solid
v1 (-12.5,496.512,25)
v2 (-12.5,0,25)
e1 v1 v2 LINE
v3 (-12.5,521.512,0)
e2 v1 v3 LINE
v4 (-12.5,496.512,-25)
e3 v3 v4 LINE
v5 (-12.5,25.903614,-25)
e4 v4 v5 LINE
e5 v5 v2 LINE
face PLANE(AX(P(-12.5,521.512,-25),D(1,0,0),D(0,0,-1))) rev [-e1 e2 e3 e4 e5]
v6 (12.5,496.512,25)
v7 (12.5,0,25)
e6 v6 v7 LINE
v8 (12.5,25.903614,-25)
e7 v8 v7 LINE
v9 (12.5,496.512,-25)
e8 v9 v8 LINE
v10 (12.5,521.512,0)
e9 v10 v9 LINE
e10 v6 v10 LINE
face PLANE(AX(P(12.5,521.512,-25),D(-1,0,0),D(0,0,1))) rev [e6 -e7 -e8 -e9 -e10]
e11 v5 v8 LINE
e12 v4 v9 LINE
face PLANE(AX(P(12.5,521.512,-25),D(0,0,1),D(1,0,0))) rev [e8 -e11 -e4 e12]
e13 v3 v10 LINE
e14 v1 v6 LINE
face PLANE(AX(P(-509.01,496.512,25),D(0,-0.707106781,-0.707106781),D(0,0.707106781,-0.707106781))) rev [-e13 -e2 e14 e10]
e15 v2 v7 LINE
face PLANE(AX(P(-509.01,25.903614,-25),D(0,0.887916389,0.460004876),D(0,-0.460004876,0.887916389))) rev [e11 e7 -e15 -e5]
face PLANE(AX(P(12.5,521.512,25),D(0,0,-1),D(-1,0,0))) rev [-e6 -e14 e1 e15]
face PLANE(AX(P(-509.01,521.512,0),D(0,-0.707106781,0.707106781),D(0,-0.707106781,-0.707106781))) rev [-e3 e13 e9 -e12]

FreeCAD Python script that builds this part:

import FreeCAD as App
import Part
import Sketcher
from FreeCAD import Vector
Q = App.Units.Quantity


def add_polygon(sketch, points):
    """Adds a closed chain of lines whose ends are joined by coincident constraints."""
    first, n = sketch.GeometryCount, len(points)
    for a, b in zip(points, points[1:] + points[:1]):
        sketch.addGeometry(Part.LineSegment(App.Vector(*a, 0), App.Vector(*b, 0)), False)
    for i in range(n):
        sketch.addConstraint(Sketcher.Constraint("Coincident", first + i, 2, first + (i + 1) % n, 1))

doc = App.newDocument("Part")
body = doc.addObject("PartDesign::Body", "Body")

sketch1 = body.newObject("Sketcher::SketchObject", "Sketch")
sketch1.AttachmentSupport = (doc.getObject("XZ_Plane"), [""])
sketch1.MapMode = "FlatFace"
add_polygon(sketch1, [(-12, -25), (-12, 25), (12, 25), (12, -25)])
sketch1.addConstraint([
    Sketcher.Constraint("Vertical", 0),
    Sketcher.Constraint("Horizontal", 1),
    Sketcher.Constraint("Vertical", 2),
    Sketcher.Constraint("Horizontal", 3),
    Sketcher.Constraint("Symmetric", 0, 2, 2, 2, -1, 1),
    Sketcher.Constraint("DistanceX", 1, 1, 1, 2, Q("25 mm")),
    Sketcher.Constraint("DistanceY", 0, 1, 0, 2, Q("50 mm")),
])
pad1 = body.newObject("PartDesign::Pad", "Pad")
pad1.Profile = sketch1
pad1.Length = 521.512
pad1.Reversed = True

sketch2 = body.newObject("Sketcher::SketchObject", "Sketch001")
sketch2.AttachmentSupport = (doc.getObject("YZ_Plane"), [""])
sketch2.MapMode = "FlatFace"
sketch2.AttachmentOffset = App.Placement(Vector(0, 0, 12.5), App.Rotation())
add_polygon(sketch2, [(522, 0), (522, 25), (497, 25)])
add_polygon(sketch2, [(0, -25), (26, -25), (0, 25)])
sketch2.addConstraint([
    Sketcher.Constraint("Vertical", 0),
    Sketcher.Constraint("Horizontal", 1),
    Sketcher.Constraint("Horizontal", 3),
    Sketcher.Constraint("Vertical", 5),
    Sketcher.Constraint("Symmetric", 4, 2, 5, 2, -1, 1),
    Sketcher.Constraint("PointOnObject", 2, 2, -1),
    Sketcher.Constraint("Horizontal", 1, 2, 4, 2),
    Sketcher.Constraint("Equal", 1, 0),
    Sketcher.Constraint("DistanceX", 1, 2, 1, 1, Q("25 mm")),
    Sketcher.Constraint("DistanceX", -1, 1, 0, 2, Q("521.512 mm")),
    Sketcher.Constraint("Distance", 4, Q("56.311608 mm")),
])
pocket1 = body.newObject("PartDesign::Pocket", "Pocket")
pocket1.Profile = sketch2
pocket1.Length = 521.51

sketch3 = body.newObject("Sketcher::SketchObject", "Sketch002")
sketch3.AttachmentSupport = (doc.getObject("YZ_Plane"), [""])
sketch3.MapMode = "FlatFace"
sketch3.AttachmentOffset = App.Placement(Vector(0, 0, 12.5), App.Rotation())
add_polygon(sketch3, [(522, 0), (497, -25), (522, -25)])
sketch3.addConstraint([
    Sketcher.Constraint("Horizontal", 1),
    Sketcher.Constraint("Vertical", 2),
    Sketcher.Constraint("PointOnObject", 2, 2, -1),
    Sketcher.Constraint("Equal", 1, 2),
    Sketcher.Constraint("DistanceX", 1, 1, 1, 2, Q("25 mm")),
    Sketcher.Constraint("DistanceX", -1, 1, 0, 2, Q("496.512 mm")),
])
pocket2 = body.newObject("PartDesign::Pocket", "Pocket001")
pocket2.Profile = sketch3
pocket2.Length = 521.51

doc.recompute()
